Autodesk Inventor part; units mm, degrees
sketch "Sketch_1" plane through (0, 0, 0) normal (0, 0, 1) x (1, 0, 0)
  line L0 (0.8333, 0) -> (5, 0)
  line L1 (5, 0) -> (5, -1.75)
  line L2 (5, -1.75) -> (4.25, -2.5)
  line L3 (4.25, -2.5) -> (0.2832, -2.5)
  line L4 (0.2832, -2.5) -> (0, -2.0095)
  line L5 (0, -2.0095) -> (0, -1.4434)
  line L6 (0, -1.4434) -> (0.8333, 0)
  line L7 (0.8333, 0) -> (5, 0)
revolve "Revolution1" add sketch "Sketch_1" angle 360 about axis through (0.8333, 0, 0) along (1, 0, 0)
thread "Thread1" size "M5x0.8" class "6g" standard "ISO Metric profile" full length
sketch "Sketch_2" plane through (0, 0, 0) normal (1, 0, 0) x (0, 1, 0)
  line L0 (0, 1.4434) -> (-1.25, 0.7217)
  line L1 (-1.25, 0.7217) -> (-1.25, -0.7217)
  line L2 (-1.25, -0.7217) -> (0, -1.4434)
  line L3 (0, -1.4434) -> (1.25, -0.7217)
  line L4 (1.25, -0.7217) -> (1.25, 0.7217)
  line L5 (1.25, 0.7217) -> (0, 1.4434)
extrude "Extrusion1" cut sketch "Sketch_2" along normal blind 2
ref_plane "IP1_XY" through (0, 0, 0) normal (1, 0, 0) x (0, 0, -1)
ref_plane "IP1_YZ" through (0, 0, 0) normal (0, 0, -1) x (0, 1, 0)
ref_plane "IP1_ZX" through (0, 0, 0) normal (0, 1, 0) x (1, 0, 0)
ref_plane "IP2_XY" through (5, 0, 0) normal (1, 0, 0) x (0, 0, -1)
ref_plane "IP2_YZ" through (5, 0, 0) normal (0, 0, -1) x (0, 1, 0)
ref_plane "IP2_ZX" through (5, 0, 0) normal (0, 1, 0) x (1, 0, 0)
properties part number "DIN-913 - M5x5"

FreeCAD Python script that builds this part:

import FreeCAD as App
import Part
import Sketcher

V = App.Vector
Q = App.Units.Quantity

doc = App.newDocument("Part")
params = doc.addObject("Spreadsheet::Sheet", "Params")
for row, (alias, value) in enumerate([
    ("sketch1_height", "1.75 mm"),
    ("revolution_angle", "360 deg"),
    ("pocket1_length", "2 mm"),
], start=1):
    params.set(f"A{row}", alias)
    params.set(f"B{row}", "=" + value)
    params.setAlias(f"B{row}", alias)

body = doc.addObject("PartDesign::Body", "Body")

sketch1 = doc.addObject("Sketcher::SketchObject", "Sketch")
body.addObject(sketch1)
sketch1.AttachmentSupport = (doc.XY_Plane, [""])
sketch1.MapMode = "FlatFace"
sketch1.addGeometry(Part.LineSegment(V(5, 0, 0), V(0.8, 0, 0)), False)
sketch1.addGeometry(Part.LineSegment(V(0.8, 0, 0), V(0, -1.4, 0)), False)
sketch1.addGeometry(Part.LineSegment(V(0, -1.4, 0), V(0, -2, 0)), False)
sketch1.addGeometry(Part.LineSegment(V(0, -2, 0), V(0.3, -2.5, 0)), False)
sketch1.addGeometry(Part.LineSegment(V(0.3, -2.5, 0), V(4.2, -2.5, 0)), False)
sketch1.addGeometry(Part.LineSegment(V(4.2, -2.5, 0), V(5, -1.8, 0)), False)
sketch1.addGeometry(Part.LineSegment(V(5, -1.8, 0), V(5, 0, 0)), False)
sketch1.addConstraint(Sketcher.Constraint("Coincident", 0, 2, 1, 1))
sketch1.addConstraint(Sketcher.Constraint("Coincident", 1, 2, 2, 1))
sketch1.addConstraint(Sketcher.Constraint("Coincident", 2, 2, 3, 1))
sketch1.addConstraint(Sketcher.Constraint("Coincident", 3, 2, 4, 1))
sketch1.addConstraint(Sketcher.Constraint("Coincident", 4, 2, 5, 1))
sketch1.addConstraint(Sketcher.Constraint("Coincident", 5, 2, 6, 1))
sketch1.addConstraint(Sketcher.Constraint("Coincident", 6, 2, 0, 1))
sketch1.addConstraint(Sketcher.Constraint("Horizontal", 0))
sketch1.addConstraint(Sketcher.Constraint("Vertical", 2))
sketch1.addConstraint(Sketcher.Constraint("Horizontal", 4))
sketch1.addConstraint(Sketcher.Constraint("Vertical", 6))
sketch1.addConstraint(Sketcher.Constraint("PointOnObject", 0, 2, -1))
sketch1.addConstraint(Sketcher.Constraint("PointOnObject", 1, 2, -2))
sketch1.addConstraint(Sketcher.Constraint("Angle", 3, Q("-59.9992 deg")))
sketch1.addConstraint(Sketcher.Constraint("Angle", 5, Q("45 deg")))
sketch1.addConstraint(Sketcher.Constraint("DistanceX", -1, 1, 5, 2, 5.0))
sketch1.addConstraint(Sketcher.Constraint("DistanceY", 6, 1, 6, 2, 1.75))
sketch1.addConstraint(Sketcher.Constraint("DistanceY", 3, 2, -1, 1, 2.5))
sketch1.addConstraint(Sketcher.Constraint("DistanceY", 2, 2, 2, 1, 0.566))
sketch1.addConstraint(Sketcher.Constraint("DistanceX", 3, 2, 0, 2, 0.55))
sketch1.addConstraint(Sketcher.Constraint("DistanceX", 0, 2, 0, 1, 4.1667))
sketch1.setExpression("Constraints[16]", "Params.sketch1_height")
revolution = doc.addObject("PartDesign::Revolution", "Revolution")
body.addObject(revolution)
revolution.Profile = sketch1
revolution.ReferenceAxis = (sketch1, ["H_Axis"])
revolution.setExpression("Angle", "Params.revolution_angle")

sketch2 = doc.addObject("Sketcher::SketchObject", "Sketch001")
body.addObject(sketch2)
sketch2.AttachmentSupport = (doc.YZ_Plane, [""])
sketch2.MapMode = "FlatFace"
sketch2.addGeometry(Part.LineSegment(V(1.2, 0.7, 0), V(0, 1.4, 0)), False)
sketch2.addGeometry(Part.LineSegment(V(0, 1.4, 0), V(-1.2, 0.7, 0)), False)
sketch2.addGeometry(Part.LineSegment(V(-1.2, 0.7, 0), V(-1.2, -0.7, 0)), False)
sketch2.addGeometry(Part.LineSegment(V(-1.2, -0.7, 0), V(0, -1.4, 0)), False)
sketch2.addGeometry(Part.LineSegment(V(0, -1.4, 0), V(1.2, -0.7, 0)), False)
sketch2.addGeometry(Part.LineSegment(V(1.2, -0.7, 0), V(1.2, 0.7, 0)), False)
sketch2.addConstraint(Sketcher.Constraint("Coincident", 0, 2, 1, 1))
sketch2.addConstraint(Sketcher.Constraint("Coincident", 1, 2, 2, 1))
sketch2.addConstraint(Sketcher.Constraint("Coincident", 2, 2, 3, 1))
sketch2.addConstraint(Sketcher.Constraint("Coincident", 3, 2, 4, 1))
sketch2.addConstraint(Sketcher.Constraint("Coincident", 4, 2, 5, 1))
sketch2.addConstraint(Sketcher.Constraint("Coincident", 5, 2, 0, 1))
sketch2.addConstraint(Sketcher.Constraint("Vertical", 2))
sketch2.addConstraint(Sketcher.Constraint("Vertical", 5))
sketch2.addConstraint(Sketcher.Constraint("Symmetric", 0, 2, 3, 2, -1, 1))
sketch2.addConstraint(Sketcher.Constraint("Symmetric", 1, 2, 4, 2, -1, 1))
sketch2.addConstraint(Sketcher.Constraint("PointOnObject", 0, 2, -2))
sketch2.addConstraint(Sketcher.Constraint("Parallel", 0, 3))
sketch2.addConstraint(Sketcher.Constraint("Horizontal", 2, 2, 4, 2))
sketch2.addConstraint(Sketcher.Constraint("Angle", 0, Q("149.9996 deg")))
sketch2.addConstraint(Sketcher.Constraint("DistanceX", 2, 2, 4, 2, 2.5))
sketch2.addConstraint(Sketcher.Constraint("DistanceY", 2, 2, 2, 1, 1.4434))
pocket1 = doc.addObject("PartDesign::Pocket", "Pocket")
body.addObject(pocket1)
pocket1.Profile = sketch2
pocket1.setExpression("Length", "Params.pocket1_length")
pocket1.Reversed = True

doc.recompute()
